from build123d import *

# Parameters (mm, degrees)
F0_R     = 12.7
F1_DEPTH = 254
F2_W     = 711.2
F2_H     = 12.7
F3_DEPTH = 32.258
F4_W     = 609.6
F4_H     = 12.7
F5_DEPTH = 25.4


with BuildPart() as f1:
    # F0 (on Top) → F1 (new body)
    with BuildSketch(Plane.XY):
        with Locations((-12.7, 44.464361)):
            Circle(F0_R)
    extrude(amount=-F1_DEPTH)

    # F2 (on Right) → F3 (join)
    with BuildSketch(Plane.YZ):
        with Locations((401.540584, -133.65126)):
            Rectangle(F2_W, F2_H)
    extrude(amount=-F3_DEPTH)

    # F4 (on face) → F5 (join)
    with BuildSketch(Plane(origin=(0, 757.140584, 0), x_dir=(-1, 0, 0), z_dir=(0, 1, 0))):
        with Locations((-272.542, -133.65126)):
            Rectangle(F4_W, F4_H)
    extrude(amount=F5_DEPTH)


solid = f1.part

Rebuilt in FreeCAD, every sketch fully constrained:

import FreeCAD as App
import Part
import Sketcher
Q = App.Units.Quantity


def add_polygon(sketch, points):
    """Adds a closed chain of lines whose ends are joined by coincident constraints."""
    first, n = sketch.GeometryCount, len(points)
    for a, b in zip(points, points[1:] + points[:1]):
        sketch.addGeometry(Part.LineSegment(App.Vector(*a, 0), App.Vector(*b, 0)), False)
    for i in range(n):
        sketch.addConstraint(Sketcher.Constraint("Coincident", first + i, 2, first + (i + 1) % n, 1))

doc = App.newDocument("Part")
body = doc.addObject("PartDesign::Body", "Body")

# Sketch on XY plane
sketch1 = body.newObject("Sketcher::SketchObject", "Sketch")
sketch1.AttachmentSupport = (doc.getObject("XY_Plane"), [""])
sketch1.MapMode = "FlatFace"
sketch1.addGeometry(Part.Circle(App.Vector(-13, 44, 0), App.Vector(0, 0, 1), 13), False)
sketch1.addConstraint([
    Sketcher.Constraint("Diameter", 0, Q("1 in")),
    Sketcher.Constraint("DistanceX", 0, 3, -1, 1, Q("0.5 in")),
    Sketcher.Constraint("DistanceY", -1, 1, 0, 3, Q("44.464361 mm")),
])
pad1 = body.newObject("PartDesign::Pad", "Pad")
pad1.Profile = sketch1
pad1.Length = Q("10 in")
pad1.Reversed = True

# Sketch on YZ plane
sketch2 = body.newObject("Sketcher::SketchObject", "Sketch001")
sketch2.AttachmentSupport = (doc.getObject("YZ_Plane"), [""])
sketch2.MapMode = "FlatFace"
add_polygon(sketch2, [(46, -127), (46, -140), (757, -140), (757, -127)])  # lines 0-3
sketch2.addConstraint([
    Sketcher.Constraint("Vertical", 0),
    Sketcher.Constraint("Horizontal", 1),
    Sketcher.Constraint("Vertical", 2),
    Sketcher.Constraint("Horizontal", 3),
    Sketcher.Constraint("DistanceX", 1, 1, 1, 2, Q("28 in")),
    Sketcher.Constraint("DistanceY", 0, 2, 0, 1, Q("0.5 in")),
    Sketcher.Constraint("DistanceY", 0, 2, -1, 1, Q("140.00126 mm")),
    Sketcher.Constraint("DistanceX", -1, 1, 0, 2, Q("45.940584 mm")),
])
pad2 = body.newObject("PartDesign::Pad", "Pad001")
pad2.Profile = sketch2
pad2.Length = Q("1.27 in")
pad2.Reversed = True

# Sketch on XZ plane
sketch3 = body.newObject("Sketcher::SketchObject", "Sketch002")
sketch3.AttachmentSupport = (doc.getObject("XZ_Plane"), [""])
sketch3.MapMode = "FlatFace"
sketch3.AttachmentOffset = App.Placement(App.Vector(0, 0, -757.140584), App.Rotation())
add_polygon(sketch3, [(577, -127), (577, -140), (-32, -140), (-32, -127)])  # lines 0-3
sketch3.addConstraint([
    Sketcher.Constraint("Vertical", 0),
    Sketcher.Constraint("Horizontal", 1),
    Sketcher.Constraint("Vertical", 2),
    Sketcher.Constraint("Horizontal", 3),
    Sketcher.Constraint("DistanceX", 1, 2, 1, 1, Q("24 in")),
    Sketcher.Constraint("DistanceY", 0, 2, 0, 1, Q("0.5 in")),
    Sketcher.Constraint("DistanceX", -1, 1, 0, 2, Q("22.73 in")),
    Sketcher.Constraint("DistanceY", 0, 2, -1, 1, Q("140.00126 mm")),
])
pad3 = body.newObject("PartDesign::Pad", "Pad002")
pad3.Profile = sketch3
pad3.Length = Q("1 in")
pad3.Reversed = True

doc.recompute()
